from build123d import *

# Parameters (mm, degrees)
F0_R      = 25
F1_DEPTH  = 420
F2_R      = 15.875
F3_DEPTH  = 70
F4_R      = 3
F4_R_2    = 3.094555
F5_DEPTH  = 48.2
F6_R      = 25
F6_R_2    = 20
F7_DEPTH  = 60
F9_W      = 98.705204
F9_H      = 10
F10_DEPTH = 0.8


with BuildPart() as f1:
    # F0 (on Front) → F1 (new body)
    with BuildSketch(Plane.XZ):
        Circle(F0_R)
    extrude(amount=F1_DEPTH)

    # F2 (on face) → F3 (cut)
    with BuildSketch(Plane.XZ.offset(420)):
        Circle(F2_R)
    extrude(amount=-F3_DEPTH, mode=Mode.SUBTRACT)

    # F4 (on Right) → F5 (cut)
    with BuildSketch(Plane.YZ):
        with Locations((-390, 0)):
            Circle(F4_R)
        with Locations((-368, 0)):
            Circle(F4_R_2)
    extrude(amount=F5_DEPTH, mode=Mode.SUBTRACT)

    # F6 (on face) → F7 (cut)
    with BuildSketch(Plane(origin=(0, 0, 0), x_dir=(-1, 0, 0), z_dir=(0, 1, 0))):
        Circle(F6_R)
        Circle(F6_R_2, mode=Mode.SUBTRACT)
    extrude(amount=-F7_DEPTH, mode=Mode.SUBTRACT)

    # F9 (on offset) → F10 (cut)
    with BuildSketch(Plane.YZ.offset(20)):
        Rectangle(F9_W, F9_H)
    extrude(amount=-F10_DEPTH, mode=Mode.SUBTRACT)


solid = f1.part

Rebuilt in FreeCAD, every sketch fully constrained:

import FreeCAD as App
import Part
import Sketcher

doc = App.newDocument("Part")
body = doc.addObject("PartDesign::Body", "Body")

# Sketch on XZ plane
sketch1 = body.newObject("Sketcher::SketchObject", "Sketch")
sketch1.AttachmentSupport = (doc.getObject("XZ_Plane"), [""])
sketch1.MapMode = "FlatFace"
sketch1.addGeometry(Part.Circle(App.Vector(0, 0, 0), App.Vector(0, 0, 1), 25), False)
sketch1.addConstraint(Sketcher.Constraint("Coincident", 0, 3, -1, 1))
sketch1.addConstraint(Sketcher.Constraint("Diameter", 0, 50.0))
pad1 = body.newObject("PartDesign::Pad", "Pad")
pad1.Profile = sketch1
pad1.Length = 420

# Sketch on XZ plane
sketch2 = body.newObject("Sketcher::SketchObject", "Sketch001")
sketch2.AttachmentSupport = (doc.getObject("XZ_Plane"), [""])
sketch2.MapMode = "FlatFace"
sketch2.AttachmentOffset = App.Placement(App.Vector(0, 0, 420), App.Rotation())
sketch2.addGeometry(Part.Circle(App.Vector(0, 0, 0), App.Vector(0, 0, 1), 15.875), False)
sketch2.addConstraint(Sketcher.Constraint("Coincident", 0, 3, -1, 1))
sketch2.addConstraint(Sketcher.Constraint("Diameter", 0, 31.75))
pocket1 = body.newObject("PartDesign::Pocket", "Pocket")
pocket1.Profile = sketch2
pocket1.Length = 70

# Sketch on YZ plane
sketch3 = body.newObject("Sketcher::SketchObject", "Sketch002")
sketch3.AttachmentSupport = (doc.getObject("YZ_Plane"), [""])
sketch3.MapMode = "FlatFace"
sketch3.addGeometry(Part.Circle(App.Vector(-390, 0, 0), App.Vector(0, 0, 1), 3), False)
sketch3.addGeometry(Part.Circle(App.Vector(-368, 0, 0), App.Vector(0, 0, 1), 3.094555), False)
sketch3.addConstraint(Sketcher.Constraint("PointOnObject", 0, 3, -1))
sketch3.addConstraint(Sketcher.Constraint("PointOnObject", 1, 3, -1))
sketch3.addConstraint(Sketcher.Constraint("Diameter", 0, 6.0))
sketch3.addConstraint(Sketcher.Constraint("DistanceX", 0, 3, -1, 1, 390.0))
sketch3.addConstraint(Sketcher.Constraint("DistanceX", 1, 3, -1, 1, 368.0))
sketch3.addConstraint(Sketcher.Constraint("Diameter", 1, 6.18911))
pocket2 = body.newObject("PartDesign::Pocket", "Pocket001")
pocket2.Profile = sketch3
pocket2.Length = 48.2
pocket2.Reversed = True

# Sketch on XZ plane
sketch4 = body.newObject("Sketcher::SketchObject", "Sketch003")
sketch4.AttachmentSupport = (doc.getObject("XZ_Plane"), [""])
sketch4.MapMode = "FlatFace"
sketch4.addGeometry(Part.Circle(App.Vector(0, 0, 0), App.Vector(0, 0, 1), 25), False)
sketch4.addGeometry(Part.Circle(App.Vector(0, 0, 0), App.Vector(0, 0, 1), 20), False)
sketch4.addConstraint(Sketcher.Constraint("Coincident", 0, 3, -1, 1))
sketch4.addConstraint(Sketcher.Constraint("Coincident", 1, 3, -1, 1))
sketch4.addConstraint(Sketcher.Constraint("Diameter", 0, 50.0))
sketch4.addConstraint(Sketcher.Constraint("Diameter", 1, 40.0))
pocket3 = body.newObject("PartDesign::Pocket", "Pocket002")
pocket3.Profile = sketch4
pocket3.Length = 60
pocket3.Reversed = True

# Sketch on YZ plane
sketch5 = body.newObject("Sketcher::SketchObject", "Sketch004")
sketch5.AttachmentSupport = (doc.getObject("YZ_Plane"), [""])
sketch5.MapMode = "FlatFace"
sketch5.AttachmentOffset = App.Placement(App.Vector(0, 0, 20), App.Rotation())
sketch5.addGeometry(Part.LineSegment(App.Vector(-49.352602, 5, 0), App.Vector(-49.352602, -5, 0)), False)
sketch5.addGeometry(Part.LineSegment(App.Vector(-49.352602, -5, 0), App.Vector(49.352602, -5, 0)), False)
sketch5.addGeometry(Part.LineSegment(App.Vector(49.352602, -5, 0), App.Vector(49.352602, 5, 0)), False)
sketch5.addGeometry(Part.LineSegment(App.Vector(49.352602, 5, 0), App.Vector(-49.352602, 5, 0)), False)
sketch5.addConstraint(Sketcher.Constraint("Coincident", 0, 2, 1, 1))
sketch5.addConstraint(Sketcher.Constraint("Coincident", 1, 2, 2, 1))
sketch5.addConstraint(Sketcher.Constraint("Coincident", 2, 2, 3, 1))
sketch5.addConstraint(Sketcher.Constraint("Coincident", 3, 2, 0, 1))
sketch5.addConstraint(Sketcher.Constraint("Vertical", 0))
sketch5.addConstraint(Sketcher.Constraint("Horizontal", 1))
sketch5.addConstraint(Sketcher.Constraint("Vertical", 2))
sketch5.addConstraint(Sketcher.Constraint("Horizontal", 3))
sketch5.addConstraint(Sketcher.Constraint("Symmetric", 0, 2, 2, 2, -1, 1))
sketch5.addConstraint(Sketcher.Constraint("DistanceY", 0, 2, 0, 1, 10.0))
sketch5.addConstraint(Sketcher.Constraint("DistanceX", 0, 2, -1, 1, 49.352602))
pocket4 = body.newObject("PartDesign::Pocket", "Pocket003")
pocket4.Profile = sketch5
pocket4.Length = 0.8

doc.recompute()
